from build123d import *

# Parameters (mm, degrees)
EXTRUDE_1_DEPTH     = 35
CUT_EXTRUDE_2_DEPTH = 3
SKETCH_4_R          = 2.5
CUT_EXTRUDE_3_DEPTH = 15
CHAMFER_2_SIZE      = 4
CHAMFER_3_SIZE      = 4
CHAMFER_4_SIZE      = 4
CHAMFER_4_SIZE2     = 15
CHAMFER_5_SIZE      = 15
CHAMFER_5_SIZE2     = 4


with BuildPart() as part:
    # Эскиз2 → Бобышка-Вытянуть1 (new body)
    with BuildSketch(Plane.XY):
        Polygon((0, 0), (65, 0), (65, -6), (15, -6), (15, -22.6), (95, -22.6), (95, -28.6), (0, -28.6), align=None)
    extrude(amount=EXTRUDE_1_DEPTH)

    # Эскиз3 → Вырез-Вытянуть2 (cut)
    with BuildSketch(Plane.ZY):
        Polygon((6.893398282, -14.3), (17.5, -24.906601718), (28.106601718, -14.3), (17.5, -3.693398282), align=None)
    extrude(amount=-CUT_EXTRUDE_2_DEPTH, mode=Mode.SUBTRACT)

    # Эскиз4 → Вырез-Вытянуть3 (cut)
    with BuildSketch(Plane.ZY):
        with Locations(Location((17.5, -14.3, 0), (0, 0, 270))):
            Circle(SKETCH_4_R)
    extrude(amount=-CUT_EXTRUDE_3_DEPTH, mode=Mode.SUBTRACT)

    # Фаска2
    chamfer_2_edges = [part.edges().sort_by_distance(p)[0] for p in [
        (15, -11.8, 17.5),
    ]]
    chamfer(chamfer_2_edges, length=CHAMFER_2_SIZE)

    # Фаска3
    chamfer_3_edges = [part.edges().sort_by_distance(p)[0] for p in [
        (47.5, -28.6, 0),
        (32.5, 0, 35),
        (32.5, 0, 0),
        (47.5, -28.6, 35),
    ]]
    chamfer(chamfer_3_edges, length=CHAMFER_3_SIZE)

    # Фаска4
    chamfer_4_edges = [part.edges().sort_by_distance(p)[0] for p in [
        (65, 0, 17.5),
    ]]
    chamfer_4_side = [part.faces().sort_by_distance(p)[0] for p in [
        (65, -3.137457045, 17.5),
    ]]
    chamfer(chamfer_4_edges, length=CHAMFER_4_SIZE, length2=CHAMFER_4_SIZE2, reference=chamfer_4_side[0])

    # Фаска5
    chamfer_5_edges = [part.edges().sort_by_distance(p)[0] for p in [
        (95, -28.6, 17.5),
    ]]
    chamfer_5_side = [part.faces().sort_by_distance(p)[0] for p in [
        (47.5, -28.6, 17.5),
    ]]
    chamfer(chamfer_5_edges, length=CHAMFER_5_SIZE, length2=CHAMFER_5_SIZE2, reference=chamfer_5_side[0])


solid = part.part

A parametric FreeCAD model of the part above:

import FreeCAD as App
import Part
import Sketcher


def edges_at(feature, points):
    """Names of the edges that pass closest to the given points."""
    edges = feature.Shape.Edges
    near = lambda p: min(range(len(edges)), key=lambda i: edges[i].distToShape(Part.Vertex(*p))[0])
    return sorted({f"Edge{near(p) + 1}" for p in points})


def add_polygon(sketch, points):
    """Adds a closed chain of lines whose ends are joined by coincident constraints."""
    first, n = sketch.GeometryCount, len(points)
    for a, b in zip(points, points[1:] + points[:1]):
        sketch.addGeometry(Part.LineSegment(App.Vector(*a, 0), App.Vector(*b, 0)), False)
    for i in range(n):
        sketch.addConstraint(Sketcher.Constraint("Coincident", first + i, 2, first + (i + 1) % n, 1))

doc = App.newDocument("Part")
body = doc.addObject("PartDesign::Body", "Body")

sketch1 = body.newObject("Sketcher::SketchObject", "Sketch")
sketch1.AttachmentSupport = (doc.getObject("XY_Plane"), [""])
sketch1.MapMode = "FlatFace"
add_polygon(sketch1, [(65, 0), (0, 0), (0, -29), (95, -29), (95, -23), (15, -23), (15, -6), (65, -6)])
sketch1.addConstraint(Sketcher.Constraint("Horizontal", 0))
sketch1.addConstraint(Sketcher.Constraint("Vertical", 1))
sketch1.addConstraint(Sketcher.Constraint("Horizontal", 2))
sketch1.addConstraint(Sketcher.Constraint("Vertical", 3))
sketch1.addConstraint(Sketcher.Constraint("Horizontal", 4))
sketch1.addConstraint(Sketcher.Constraint("Vertical", 5))
sketch1.addConstraint(Sketcher.Constraint("Horizontal", 6))
sketch1.addConstraint(Sketcher.Constraint("Vertical", 7))
sketch1.addConstraint(Sketcher.Constraint("Coincident", 0, 2, -1, 1))
sketch1.addConstraint(Sketcher.Constraint("Equal", 3, 7))
sketch1.addConstraint(Sketcher.Constraint("DistanceX", 0, 2, 0, 1, 65.0))
sketch1.addConstraint(Sketcher.Constraint("DistanceX", 2, 1, 2, 2, 95.0))
sketch1.addConstraint(Sketcher.Constraint("DistanceX", 4, 2, 4, 1, 80.0))
sketch1.addConstraint(Sketcher.Constraint("DistanceY", 3, 1, 3, 2, 6.0))
sketch1.addConstraint(Sketcher.Constraint("DistanceY", 1, 2, 1, 1, 28.6))
pad1 = body.newObject("PartDesign::Pad", "Pad")
pad1.Profile = sketch1
pad1.Length = 35

sketch2 = body.newObject("Sketcher::SketchObject", "Sketch001")
sketch2.AttachmentSupport = (doc.getObject("YZ_Plane"), [""])
sketch2.MapMode = "FlatFace"
add_polygon(sketch2, [(-14, 7), (-25, 18), (-14, 28), (-4, 18)])
sketch2.addConstraint(Sketcher.Constraint("Perpendicular", 0, 1))
sketch2.addConstraint(Sketcher.Constraint("Perpendicular", 1, 2))
sketch2.addConstraint(Sketcher.Constraint("Perpendicular", 2, 3))
sketch2.addConstraint(Sketcher.Constraint("Horizontal", 0, 2, 2, 2))
sketch2.addConstraint(Sketcher.Constraint("Vertical", 1, 2, 3, 2))
sketch2.addConstraint(Sketcher.Constraint("Distance", 0, 15.0))
sketch2.addConstraint(Sketcher.Constraint("DistanceY", -1, 1, 0, 2, 17.5))
sketch2.addConstraint(Sketcher.Constraint("DistanceX", 1, 2, -1, 1, 14.3))
pocket1 = body.newObject("PartDesign::Pocket", "Pocket")
pocket1.Profile = sketch2
pocket1.Length = 3
pocket1.Reversed = True

sketch3 = body.newObject("Sketcher::SketchObject", "Sketch002")
sketch3.AttachmentSupport = (doc.getObject("YZ_Plane"), [""])
sketch3.MapMode = "FlatFace"
sketch3.addGeometry(Part.Circle(App.Vector(-14.3, 17.5, 0), App.Vector(0, 0, 1), 2.5), False)
sketch3.addConstraint(Sketcher.Constraint("Diameter", 0, 5.0))
sketch3.addConstraint(Sketcher.Constraint("DistanceX", 0, 3, -1, 1, 14.3))
sketch3.addConstraint(Sketcher.Constraint("DistanceY", -1, 1, 0, 3, 17.5))
pocket2 = body.newObject("PartDesign::Pocket", "Pocket001")
pocket2.Profile = sketch3
pocket2.Length = 15
pocket2.Reversed = True
doc.recompute()

chamfer = body.newObject("PartDesign::Chamfer", "Chamfer")
chamfer.Base = (pocket2, edges_at(pocket2, [(15, -11.8, 17.5)]))
chamfer.Size = 4
doc.recompute()

chamfer2 = body.newObject("PartDesign::Chamfer", "Chamfer001")
chamfer2.Base = (chamfer, edges_at(chamfer, [
    (47.5, -28.6, 0),
    (32.5, 0, 35),
    (32.5, 0, 0),
    (47.5, -28.6, 35),
]))
chamfer2.Size = 4
doc.recompute()

chamfer3 = body.newObject("PartDesign::Chamfer", "Chamfer002")
chamfer3.Base = (chamfer2, edges_at(chamfer2, [(65, 0, 17.5)]))
chamfer3.ChamferType = "Two distances"
chamfer3.Size = 4
chamfer3.Size2 = 15
doc.recompute()

chamfer4 = body.newObject("PartDesign::Chamfer", "Chamfer003")
chamfer4.Base = (chamfer3, edges_at(chamfer3, [(95, -28.6, 17.5)]))
chamfer4.ChamferType = "Two distances"
chamfer4.Size = 15
chamfer4.Size2 = 4

doc.recompute()
